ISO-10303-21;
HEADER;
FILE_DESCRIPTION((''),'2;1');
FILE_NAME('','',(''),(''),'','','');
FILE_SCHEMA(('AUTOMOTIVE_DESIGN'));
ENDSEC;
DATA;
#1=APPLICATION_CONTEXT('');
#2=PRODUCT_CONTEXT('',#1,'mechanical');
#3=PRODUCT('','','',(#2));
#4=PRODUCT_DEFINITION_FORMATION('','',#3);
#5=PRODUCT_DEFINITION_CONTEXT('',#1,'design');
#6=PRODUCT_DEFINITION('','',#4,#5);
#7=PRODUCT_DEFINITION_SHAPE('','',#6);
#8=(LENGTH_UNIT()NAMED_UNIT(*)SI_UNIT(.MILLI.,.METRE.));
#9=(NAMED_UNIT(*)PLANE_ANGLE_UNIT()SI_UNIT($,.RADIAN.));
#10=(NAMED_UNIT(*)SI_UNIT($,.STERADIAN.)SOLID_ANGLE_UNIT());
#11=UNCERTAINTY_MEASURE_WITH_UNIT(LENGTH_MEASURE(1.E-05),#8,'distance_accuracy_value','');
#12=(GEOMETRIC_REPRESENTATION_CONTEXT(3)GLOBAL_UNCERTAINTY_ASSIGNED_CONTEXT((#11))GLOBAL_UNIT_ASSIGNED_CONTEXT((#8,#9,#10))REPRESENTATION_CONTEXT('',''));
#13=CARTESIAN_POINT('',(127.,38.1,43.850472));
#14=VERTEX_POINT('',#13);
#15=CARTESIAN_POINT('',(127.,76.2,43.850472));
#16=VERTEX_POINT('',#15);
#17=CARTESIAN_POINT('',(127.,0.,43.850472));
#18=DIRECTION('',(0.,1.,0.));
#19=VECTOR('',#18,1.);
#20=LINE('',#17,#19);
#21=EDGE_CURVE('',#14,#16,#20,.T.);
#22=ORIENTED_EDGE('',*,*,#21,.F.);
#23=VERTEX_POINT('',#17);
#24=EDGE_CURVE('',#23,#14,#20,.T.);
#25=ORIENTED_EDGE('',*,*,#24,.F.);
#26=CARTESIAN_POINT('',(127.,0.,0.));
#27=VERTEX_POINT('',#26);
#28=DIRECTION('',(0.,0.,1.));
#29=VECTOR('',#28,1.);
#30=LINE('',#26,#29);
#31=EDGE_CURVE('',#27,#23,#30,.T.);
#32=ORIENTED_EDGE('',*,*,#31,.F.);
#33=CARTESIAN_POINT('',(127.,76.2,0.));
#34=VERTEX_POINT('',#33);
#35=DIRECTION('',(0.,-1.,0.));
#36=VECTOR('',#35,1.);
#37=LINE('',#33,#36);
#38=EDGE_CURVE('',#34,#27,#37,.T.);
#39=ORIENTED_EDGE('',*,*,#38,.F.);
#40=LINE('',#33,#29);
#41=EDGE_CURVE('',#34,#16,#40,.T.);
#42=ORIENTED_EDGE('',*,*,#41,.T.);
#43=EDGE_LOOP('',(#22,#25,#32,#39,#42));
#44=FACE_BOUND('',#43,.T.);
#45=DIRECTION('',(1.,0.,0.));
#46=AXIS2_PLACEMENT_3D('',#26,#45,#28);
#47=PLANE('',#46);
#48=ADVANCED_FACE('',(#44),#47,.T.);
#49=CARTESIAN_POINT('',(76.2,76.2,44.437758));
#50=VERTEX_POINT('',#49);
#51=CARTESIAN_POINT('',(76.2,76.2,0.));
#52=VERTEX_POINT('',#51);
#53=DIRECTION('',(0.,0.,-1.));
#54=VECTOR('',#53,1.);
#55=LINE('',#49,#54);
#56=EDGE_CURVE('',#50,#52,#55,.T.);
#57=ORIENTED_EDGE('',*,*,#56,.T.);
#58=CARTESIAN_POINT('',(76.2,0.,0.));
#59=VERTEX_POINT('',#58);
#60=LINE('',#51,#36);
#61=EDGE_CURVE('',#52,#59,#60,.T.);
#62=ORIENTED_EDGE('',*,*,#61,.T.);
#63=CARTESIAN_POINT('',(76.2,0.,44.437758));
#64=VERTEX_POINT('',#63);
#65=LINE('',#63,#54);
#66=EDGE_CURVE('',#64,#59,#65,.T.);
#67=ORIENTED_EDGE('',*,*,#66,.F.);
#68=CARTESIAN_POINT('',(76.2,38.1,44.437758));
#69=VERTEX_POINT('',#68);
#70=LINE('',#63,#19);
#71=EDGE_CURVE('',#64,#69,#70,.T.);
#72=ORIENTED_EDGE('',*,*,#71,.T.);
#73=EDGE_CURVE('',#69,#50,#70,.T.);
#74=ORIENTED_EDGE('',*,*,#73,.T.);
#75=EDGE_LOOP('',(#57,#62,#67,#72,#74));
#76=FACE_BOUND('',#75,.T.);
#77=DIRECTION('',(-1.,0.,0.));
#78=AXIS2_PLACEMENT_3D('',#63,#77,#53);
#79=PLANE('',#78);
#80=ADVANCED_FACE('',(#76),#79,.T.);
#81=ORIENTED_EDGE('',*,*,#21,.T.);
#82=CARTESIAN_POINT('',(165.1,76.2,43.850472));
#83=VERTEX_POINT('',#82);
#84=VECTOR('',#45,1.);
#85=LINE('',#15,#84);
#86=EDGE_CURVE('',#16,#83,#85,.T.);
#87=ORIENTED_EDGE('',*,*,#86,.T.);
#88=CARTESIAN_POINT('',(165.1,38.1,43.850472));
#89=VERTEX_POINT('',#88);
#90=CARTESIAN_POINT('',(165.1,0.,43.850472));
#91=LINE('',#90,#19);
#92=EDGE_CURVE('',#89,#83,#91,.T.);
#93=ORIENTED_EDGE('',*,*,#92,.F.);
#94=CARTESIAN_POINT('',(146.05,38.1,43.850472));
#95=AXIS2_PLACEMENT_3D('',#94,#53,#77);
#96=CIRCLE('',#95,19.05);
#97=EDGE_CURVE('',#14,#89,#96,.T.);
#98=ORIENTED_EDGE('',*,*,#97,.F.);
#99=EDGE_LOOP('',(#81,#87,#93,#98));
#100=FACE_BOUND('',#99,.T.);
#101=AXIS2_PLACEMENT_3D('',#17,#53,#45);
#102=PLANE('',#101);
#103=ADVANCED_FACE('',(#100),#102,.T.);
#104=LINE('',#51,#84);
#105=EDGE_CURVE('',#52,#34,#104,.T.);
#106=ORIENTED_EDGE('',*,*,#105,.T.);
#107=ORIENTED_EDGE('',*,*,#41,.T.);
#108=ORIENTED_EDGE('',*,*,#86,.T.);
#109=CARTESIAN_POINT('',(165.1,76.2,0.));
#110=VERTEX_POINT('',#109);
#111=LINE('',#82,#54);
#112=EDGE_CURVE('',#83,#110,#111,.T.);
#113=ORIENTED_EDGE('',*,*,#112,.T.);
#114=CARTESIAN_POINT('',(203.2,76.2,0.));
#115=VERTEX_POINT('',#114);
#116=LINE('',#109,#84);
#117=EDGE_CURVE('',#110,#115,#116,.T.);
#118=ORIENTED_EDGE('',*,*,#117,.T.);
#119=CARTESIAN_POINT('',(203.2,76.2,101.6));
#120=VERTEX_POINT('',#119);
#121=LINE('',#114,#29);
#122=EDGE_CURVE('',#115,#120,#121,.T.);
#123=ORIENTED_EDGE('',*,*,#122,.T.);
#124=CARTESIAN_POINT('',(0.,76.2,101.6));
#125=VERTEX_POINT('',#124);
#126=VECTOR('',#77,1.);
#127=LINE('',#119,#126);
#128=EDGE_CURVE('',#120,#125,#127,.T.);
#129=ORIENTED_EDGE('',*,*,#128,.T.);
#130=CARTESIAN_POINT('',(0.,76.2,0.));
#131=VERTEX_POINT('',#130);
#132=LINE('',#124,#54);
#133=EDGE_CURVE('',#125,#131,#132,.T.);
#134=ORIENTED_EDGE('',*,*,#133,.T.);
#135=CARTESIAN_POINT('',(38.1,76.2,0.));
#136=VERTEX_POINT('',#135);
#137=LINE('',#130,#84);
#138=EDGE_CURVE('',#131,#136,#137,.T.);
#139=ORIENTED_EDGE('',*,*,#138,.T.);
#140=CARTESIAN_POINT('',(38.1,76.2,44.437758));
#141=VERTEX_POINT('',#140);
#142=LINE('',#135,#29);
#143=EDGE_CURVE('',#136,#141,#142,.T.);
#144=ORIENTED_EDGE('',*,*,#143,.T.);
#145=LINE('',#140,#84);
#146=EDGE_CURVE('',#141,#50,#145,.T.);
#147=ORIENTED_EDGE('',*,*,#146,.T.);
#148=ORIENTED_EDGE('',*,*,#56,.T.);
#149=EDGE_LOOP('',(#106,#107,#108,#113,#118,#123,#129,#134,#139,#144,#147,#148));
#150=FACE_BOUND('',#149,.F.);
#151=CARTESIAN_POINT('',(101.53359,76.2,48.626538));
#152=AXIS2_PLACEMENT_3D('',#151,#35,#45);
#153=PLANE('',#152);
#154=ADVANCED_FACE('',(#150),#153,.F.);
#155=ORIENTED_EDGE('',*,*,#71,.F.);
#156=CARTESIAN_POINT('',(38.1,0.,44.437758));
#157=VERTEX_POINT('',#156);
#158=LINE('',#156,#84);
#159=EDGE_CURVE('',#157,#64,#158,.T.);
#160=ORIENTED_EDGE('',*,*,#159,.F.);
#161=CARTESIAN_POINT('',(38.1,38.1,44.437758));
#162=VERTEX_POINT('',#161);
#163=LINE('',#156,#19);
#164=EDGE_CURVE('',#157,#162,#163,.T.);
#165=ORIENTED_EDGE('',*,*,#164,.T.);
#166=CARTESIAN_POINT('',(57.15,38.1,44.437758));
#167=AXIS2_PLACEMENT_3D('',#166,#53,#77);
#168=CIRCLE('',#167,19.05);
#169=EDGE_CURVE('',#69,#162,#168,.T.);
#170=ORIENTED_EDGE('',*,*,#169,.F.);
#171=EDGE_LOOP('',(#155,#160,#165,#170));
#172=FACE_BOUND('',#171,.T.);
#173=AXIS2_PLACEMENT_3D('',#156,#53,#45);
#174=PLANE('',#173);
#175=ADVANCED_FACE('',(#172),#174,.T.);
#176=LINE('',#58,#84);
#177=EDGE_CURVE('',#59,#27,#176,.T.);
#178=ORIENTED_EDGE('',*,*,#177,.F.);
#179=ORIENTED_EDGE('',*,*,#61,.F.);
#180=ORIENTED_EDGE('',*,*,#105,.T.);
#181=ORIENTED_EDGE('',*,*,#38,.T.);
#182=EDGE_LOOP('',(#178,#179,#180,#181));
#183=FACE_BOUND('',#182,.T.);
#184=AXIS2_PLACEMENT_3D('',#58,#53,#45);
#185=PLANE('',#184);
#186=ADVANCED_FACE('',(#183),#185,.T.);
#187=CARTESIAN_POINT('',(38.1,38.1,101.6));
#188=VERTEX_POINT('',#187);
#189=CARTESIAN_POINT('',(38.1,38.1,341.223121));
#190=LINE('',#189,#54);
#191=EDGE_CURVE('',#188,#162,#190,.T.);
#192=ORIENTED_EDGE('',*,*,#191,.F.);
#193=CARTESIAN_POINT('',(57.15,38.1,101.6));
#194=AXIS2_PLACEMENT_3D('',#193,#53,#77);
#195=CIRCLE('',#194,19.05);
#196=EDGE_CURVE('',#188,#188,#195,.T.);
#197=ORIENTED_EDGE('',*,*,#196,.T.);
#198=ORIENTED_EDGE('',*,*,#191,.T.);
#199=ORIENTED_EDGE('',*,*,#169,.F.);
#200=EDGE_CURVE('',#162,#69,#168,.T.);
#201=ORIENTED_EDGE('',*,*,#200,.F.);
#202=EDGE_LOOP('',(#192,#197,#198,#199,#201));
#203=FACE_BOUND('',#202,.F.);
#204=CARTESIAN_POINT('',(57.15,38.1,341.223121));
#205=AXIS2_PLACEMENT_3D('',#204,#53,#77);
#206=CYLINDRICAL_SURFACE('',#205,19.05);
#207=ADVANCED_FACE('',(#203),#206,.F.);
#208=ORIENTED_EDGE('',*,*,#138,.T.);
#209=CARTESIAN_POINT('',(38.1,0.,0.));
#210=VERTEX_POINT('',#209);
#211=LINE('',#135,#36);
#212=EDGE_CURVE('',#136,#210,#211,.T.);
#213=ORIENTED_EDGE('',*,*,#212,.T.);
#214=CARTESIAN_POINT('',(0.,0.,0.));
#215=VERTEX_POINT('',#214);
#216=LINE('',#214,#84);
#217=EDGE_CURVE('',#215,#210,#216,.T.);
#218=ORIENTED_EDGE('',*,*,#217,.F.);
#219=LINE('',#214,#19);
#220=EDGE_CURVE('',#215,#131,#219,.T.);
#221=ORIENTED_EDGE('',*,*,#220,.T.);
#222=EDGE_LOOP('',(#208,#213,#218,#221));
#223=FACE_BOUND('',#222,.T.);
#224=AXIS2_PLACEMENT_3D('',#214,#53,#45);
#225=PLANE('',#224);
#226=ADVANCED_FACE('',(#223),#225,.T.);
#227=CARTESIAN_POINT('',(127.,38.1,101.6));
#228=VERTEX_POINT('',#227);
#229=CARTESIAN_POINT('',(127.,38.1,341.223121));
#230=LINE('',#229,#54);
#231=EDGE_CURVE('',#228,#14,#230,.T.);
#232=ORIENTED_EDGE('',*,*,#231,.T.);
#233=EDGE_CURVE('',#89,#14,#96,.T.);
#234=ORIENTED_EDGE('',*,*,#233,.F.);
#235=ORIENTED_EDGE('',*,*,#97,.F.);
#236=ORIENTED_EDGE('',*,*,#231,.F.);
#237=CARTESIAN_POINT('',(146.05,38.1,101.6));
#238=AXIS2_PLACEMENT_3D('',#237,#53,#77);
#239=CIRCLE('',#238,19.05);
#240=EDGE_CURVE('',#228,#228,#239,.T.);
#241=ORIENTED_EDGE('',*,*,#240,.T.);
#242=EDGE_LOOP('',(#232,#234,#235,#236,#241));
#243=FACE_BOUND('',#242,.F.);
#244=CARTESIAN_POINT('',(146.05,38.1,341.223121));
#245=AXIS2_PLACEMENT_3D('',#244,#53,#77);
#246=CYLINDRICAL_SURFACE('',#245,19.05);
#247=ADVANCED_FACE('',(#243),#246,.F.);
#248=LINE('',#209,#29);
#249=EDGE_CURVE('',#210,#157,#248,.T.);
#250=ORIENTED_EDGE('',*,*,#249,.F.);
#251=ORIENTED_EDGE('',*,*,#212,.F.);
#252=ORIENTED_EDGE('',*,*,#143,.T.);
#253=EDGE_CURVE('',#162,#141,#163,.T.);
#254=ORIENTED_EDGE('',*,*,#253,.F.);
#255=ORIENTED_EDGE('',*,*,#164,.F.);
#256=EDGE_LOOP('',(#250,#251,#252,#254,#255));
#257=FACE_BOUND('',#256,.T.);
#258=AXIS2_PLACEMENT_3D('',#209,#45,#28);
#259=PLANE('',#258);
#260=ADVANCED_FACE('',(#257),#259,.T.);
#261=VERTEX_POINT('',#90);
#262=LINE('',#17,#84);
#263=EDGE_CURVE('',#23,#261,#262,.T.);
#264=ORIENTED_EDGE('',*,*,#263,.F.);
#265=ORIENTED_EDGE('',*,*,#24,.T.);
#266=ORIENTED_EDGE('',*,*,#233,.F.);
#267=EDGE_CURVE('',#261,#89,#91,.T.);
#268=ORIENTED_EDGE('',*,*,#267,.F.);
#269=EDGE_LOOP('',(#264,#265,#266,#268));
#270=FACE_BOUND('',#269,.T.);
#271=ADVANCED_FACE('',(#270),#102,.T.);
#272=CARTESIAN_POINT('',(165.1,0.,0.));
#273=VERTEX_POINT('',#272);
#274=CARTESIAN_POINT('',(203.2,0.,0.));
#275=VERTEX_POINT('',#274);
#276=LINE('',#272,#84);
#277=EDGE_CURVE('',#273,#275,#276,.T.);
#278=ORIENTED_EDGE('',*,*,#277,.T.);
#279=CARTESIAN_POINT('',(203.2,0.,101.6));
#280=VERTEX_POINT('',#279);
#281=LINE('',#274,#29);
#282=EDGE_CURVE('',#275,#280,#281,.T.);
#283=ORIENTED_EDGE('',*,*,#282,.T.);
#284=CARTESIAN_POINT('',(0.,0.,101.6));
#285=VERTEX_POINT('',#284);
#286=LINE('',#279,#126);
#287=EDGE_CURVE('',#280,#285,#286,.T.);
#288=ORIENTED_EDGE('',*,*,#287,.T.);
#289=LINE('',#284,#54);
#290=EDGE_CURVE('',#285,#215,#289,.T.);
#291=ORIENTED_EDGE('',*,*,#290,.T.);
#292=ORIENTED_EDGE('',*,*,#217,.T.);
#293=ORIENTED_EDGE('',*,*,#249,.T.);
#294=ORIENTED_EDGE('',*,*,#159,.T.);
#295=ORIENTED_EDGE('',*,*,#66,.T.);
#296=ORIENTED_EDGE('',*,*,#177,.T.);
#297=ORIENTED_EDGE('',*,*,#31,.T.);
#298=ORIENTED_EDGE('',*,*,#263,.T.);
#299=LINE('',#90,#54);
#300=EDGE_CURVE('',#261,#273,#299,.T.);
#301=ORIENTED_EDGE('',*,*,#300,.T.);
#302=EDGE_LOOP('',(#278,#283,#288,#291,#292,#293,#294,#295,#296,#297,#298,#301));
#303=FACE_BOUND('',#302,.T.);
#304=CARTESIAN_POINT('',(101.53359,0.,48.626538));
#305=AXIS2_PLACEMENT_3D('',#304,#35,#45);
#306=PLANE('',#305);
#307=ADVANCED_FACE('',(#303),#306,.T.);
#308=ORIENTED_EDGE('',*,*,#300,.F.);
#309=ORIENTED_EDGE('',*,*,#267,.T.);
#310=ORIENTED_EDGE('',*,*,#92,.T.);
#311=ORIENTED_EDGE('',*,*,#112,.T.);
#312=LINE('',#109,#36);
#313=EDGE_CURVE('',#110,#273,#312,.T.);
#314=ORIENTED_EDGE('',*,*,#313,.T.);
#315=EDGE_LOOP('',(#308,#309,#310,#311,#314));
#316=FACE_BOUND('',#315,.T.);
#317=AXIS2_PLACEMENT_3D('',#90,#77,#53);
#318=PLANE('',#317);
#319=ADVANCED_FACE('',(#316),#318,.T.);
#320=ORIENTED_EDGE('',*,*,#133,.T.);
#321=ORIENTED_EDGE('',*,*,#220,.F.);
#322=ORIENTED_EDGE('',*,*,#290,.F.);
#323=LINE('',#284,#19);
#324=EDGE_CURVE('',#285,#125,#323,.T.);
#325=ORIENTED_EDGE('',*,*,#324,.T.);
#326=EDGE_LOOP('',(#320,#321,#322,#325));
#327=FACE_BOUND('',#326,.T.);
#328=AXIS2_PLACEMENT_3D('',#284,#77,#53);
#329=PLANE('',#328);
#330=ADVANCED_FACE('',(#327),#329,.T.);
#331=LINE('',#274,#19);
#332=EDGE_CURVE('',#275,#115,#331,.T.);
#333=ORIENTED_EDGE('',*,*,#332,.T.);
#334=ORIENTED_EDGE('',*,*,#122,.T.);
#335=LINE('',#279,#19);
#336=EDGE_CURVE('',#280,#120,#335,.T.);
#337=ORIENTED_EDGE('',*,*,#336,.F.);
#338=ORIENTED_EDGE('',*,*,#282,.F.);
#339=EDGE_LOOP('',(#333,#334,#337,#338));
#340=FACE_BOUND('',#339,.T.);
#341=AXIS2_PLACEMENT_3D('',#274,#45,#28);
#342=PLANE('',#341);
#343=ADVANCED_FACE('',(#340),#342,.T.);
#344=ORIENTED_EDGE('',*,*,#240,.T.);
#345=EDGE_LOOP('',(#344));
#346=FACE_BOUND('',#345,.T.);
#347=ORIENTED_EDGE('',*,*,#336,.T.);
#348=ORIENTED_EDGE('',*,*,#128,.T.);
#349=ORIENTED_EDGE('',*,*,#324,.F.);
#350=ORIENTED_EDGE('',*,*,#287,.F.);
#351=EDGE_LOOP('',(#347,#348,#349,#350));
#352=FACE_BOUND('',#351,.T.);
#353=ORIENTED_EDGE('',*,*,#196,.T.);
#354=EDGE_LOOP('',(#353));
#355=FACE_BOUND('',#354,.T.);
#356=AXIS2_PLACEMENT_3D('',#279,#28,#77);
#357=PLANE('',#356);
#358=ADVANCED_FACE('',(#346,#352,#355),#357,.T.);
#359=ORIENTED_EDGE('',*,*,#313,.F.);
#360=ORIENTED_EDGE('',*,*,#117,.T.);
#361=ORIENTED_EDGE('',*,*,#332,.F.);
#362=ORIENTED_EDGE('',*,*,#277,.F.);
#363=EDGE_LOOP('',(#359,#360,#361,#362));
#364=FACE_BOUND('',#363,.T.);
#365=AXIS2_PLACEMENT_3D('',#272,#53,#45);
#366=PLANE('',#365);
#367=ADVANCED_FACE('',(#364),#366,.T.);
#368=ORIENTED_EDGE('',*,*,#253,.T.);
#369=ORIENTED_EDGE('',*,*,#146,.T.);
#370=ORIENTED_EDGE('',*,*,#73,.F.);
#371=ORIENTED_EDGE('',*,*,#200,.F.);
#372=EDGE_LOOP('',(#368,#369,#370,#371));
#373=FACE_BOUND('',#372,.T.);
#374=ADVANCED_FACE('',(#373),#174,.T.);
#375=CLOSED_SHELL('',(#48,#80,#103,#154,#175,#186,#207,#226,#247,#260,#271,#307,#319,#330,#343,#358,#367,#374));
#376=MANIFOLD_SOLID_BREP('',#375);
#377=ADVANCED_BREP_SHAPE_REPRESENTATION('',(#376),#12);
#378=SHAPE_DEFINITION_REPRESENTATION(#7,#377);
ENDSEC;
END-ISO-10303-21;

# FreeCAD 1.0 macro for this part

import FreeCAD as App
import Part
import Sketcher
Q = App.Units.Quantity


def add_polygon(sketch, points):
    """Adds a closed chain of lines whose ends are joined by coincident constraints."""
    first, n = sketch.GeometryCount, len(points)
    for a, b in zip(points, points[1:] + points[:1]):
        sketch.addGeometry(Part.LineSegment(App.Vector(*a, 0), App.Vector(*b, 0)), False)
    for i in range(n):
        sketch.addConstraint(Sketcher.Constraint("Coincident", first + i, 2, first + (i + 1) % n, 1))

doc = App.newDocument("Part")
params = doc.addObject("Spreadsheet::Sheet", "Params")
for row, (alias, value) in enumerate([
    ("sketch1_width", "2 in"),
    ("sketch1_width2", "8 in"),
    ("sketch1_height", "4 in"),
    ("pad1_length", "3 in"),
    ("sketch2_diameter", "1.5 in"),
    ("hole_diameter", "1.5 in"),
], start=1):
    params.set(f"A{row}", alias)
    params.set(f"B{row}", "=" + value)
    params.setAlias(f"B{row}", alias)

body = doc.addObject("PartDesign::Body", "Body")

# Sketch on XZ plane
sketch1 = body.newObject("Sketcher::SketchObject", "Sketch")
sketch1.AttachmentSupport = (doc.getObject("XZ_Plane"), [""])
sketch1.MapMode = "FlatFace"
add_polygon(sketch1, [(0, 101.6), (0, 0), (38.1, 0), (38.1, 44.437758), (76.2, 44.437758), (76.2, 0), (127, 0), (127, 43.850472), (165.1, 43.850472), (165.1, 0), (203.2, 0), (203.2, 101.6)])  # lines 0-11
sketch1.addConstraint([
    Sketcher.Constraint("Vertical", 0),
    Sketcher.Constraint("Horizontal", 1),
    Sketcher.Constraint("Vertical", 2),
    Sketcher.Constraint("Horizontal", 3),
    Sketcher.Constraint("Vertical", 4),
    Sketcher.Constraint("Horizontal", 5),
    Sketcher.Constraint("Vertical", 6),
    Sketcher.Constraint("Horizontal", 7),
    Sketcher.Constraint("Vertical", 8),
    Sketcher.Constraint("Horizontal", 9),
    Sketcher.Constraint("Vertical", 10),
    Sketcher.Constraint("Horizontal", 11),
    Sketcher.Constraint("Coincident", 0, 2, -1, 1),
    Sketcher.Constraint("PointOnObject", 4, 2, -1),
    Sketcher.Constraint("PointOnObject", 8, 2, -1),
    Sketcher.Constraint("Equal", 1, 3),
    Sketcher.Constraint("Equal", 3, 7),
    Sketcher.Constraint("Equal", 7, 9),
    Sketcher.Constraint("DistanceX", 5, 1, 5, 2, Q("2 in")),
    Sketcher.Constraint("DistanceX", 11, 2, 11, 1, Q("8 in")),
    Sketcher.Constraint("DistanceY", 0, 2, 0, 1, Q("4 in")),
    Sketcher.Constraint("DistanceY", 2, 1, 2, 2, 44.437758),
    Sketcher.Constraint("DistanceY", 6, 1, 6, 2, 43.850472),
])
sketch1.setExpression("Constraints[30]", "Params.sketch1_width")
sketch1.setExpression("Constraints[31]", "Params.sketch1_width2")
sketch1.setExpression("Constraints[32]", "Params.sketch1_height")
pad1 = body.newObject("PartDesign::Pad", "Pad")
pad1.Profile = sketch1
pad1.setExpression("Length", "Params.pad1_length")
pad1.Reversed = True

# Sketch on XY plane
sketch2 = body.newObject("Sketcher::SketchObject", "Sketch001")
sketch2.AttachmentSupport = (doc.getObject("XY_Plane"), [""])
sketch2.MapMode = "FlatFace"
sketch2.AttachmentOffset = App.Placement(App.Vector(0, 0, 4 * 25.4), App.Rotation())
sketch2.addGeometry([
    Part.Circle(App.Vector(57.15, 38.1, 0), App.Vector(0, 0, 1), 19.05),
    Part.Circle(App.Vector(146.05, 38.1, 0), App.Vector(0, 0, 1), 19.05),
], False)
sketch2.addConstraint([
    Sketcher.Constraint("Equal", 0, 1),
    Sketcher.Constraint("Horizontal", 0, 3, 1, 3),
    Sketcher.Constraint("Diameter", 0, Q("1.5 in")),
    Sketcher.Constraint("DistanceY", -1, 1, 0, 3, Q("1.5 in")),
    Sketcher.Constraint("DistanceX", 0, 3, 1, 3, Q("3.5 in")),
    Sketcher.Constraint("DistanceX", -1, 1, 0, 3, Q("2.25 in")),
])
sketch2.setExpression("Constraints[2]", "Params.sketch2_diameter")
doc.recompute()
hole = body.newObject("PartDesign::Hole", "Hole")
hole.Profile = sketch2
hole.ThreadType = "None"
hole.setExpression("Diameter", "Params.hole_diameter")
hole.DepthType = "ThroughAll"

doc.recompute()
